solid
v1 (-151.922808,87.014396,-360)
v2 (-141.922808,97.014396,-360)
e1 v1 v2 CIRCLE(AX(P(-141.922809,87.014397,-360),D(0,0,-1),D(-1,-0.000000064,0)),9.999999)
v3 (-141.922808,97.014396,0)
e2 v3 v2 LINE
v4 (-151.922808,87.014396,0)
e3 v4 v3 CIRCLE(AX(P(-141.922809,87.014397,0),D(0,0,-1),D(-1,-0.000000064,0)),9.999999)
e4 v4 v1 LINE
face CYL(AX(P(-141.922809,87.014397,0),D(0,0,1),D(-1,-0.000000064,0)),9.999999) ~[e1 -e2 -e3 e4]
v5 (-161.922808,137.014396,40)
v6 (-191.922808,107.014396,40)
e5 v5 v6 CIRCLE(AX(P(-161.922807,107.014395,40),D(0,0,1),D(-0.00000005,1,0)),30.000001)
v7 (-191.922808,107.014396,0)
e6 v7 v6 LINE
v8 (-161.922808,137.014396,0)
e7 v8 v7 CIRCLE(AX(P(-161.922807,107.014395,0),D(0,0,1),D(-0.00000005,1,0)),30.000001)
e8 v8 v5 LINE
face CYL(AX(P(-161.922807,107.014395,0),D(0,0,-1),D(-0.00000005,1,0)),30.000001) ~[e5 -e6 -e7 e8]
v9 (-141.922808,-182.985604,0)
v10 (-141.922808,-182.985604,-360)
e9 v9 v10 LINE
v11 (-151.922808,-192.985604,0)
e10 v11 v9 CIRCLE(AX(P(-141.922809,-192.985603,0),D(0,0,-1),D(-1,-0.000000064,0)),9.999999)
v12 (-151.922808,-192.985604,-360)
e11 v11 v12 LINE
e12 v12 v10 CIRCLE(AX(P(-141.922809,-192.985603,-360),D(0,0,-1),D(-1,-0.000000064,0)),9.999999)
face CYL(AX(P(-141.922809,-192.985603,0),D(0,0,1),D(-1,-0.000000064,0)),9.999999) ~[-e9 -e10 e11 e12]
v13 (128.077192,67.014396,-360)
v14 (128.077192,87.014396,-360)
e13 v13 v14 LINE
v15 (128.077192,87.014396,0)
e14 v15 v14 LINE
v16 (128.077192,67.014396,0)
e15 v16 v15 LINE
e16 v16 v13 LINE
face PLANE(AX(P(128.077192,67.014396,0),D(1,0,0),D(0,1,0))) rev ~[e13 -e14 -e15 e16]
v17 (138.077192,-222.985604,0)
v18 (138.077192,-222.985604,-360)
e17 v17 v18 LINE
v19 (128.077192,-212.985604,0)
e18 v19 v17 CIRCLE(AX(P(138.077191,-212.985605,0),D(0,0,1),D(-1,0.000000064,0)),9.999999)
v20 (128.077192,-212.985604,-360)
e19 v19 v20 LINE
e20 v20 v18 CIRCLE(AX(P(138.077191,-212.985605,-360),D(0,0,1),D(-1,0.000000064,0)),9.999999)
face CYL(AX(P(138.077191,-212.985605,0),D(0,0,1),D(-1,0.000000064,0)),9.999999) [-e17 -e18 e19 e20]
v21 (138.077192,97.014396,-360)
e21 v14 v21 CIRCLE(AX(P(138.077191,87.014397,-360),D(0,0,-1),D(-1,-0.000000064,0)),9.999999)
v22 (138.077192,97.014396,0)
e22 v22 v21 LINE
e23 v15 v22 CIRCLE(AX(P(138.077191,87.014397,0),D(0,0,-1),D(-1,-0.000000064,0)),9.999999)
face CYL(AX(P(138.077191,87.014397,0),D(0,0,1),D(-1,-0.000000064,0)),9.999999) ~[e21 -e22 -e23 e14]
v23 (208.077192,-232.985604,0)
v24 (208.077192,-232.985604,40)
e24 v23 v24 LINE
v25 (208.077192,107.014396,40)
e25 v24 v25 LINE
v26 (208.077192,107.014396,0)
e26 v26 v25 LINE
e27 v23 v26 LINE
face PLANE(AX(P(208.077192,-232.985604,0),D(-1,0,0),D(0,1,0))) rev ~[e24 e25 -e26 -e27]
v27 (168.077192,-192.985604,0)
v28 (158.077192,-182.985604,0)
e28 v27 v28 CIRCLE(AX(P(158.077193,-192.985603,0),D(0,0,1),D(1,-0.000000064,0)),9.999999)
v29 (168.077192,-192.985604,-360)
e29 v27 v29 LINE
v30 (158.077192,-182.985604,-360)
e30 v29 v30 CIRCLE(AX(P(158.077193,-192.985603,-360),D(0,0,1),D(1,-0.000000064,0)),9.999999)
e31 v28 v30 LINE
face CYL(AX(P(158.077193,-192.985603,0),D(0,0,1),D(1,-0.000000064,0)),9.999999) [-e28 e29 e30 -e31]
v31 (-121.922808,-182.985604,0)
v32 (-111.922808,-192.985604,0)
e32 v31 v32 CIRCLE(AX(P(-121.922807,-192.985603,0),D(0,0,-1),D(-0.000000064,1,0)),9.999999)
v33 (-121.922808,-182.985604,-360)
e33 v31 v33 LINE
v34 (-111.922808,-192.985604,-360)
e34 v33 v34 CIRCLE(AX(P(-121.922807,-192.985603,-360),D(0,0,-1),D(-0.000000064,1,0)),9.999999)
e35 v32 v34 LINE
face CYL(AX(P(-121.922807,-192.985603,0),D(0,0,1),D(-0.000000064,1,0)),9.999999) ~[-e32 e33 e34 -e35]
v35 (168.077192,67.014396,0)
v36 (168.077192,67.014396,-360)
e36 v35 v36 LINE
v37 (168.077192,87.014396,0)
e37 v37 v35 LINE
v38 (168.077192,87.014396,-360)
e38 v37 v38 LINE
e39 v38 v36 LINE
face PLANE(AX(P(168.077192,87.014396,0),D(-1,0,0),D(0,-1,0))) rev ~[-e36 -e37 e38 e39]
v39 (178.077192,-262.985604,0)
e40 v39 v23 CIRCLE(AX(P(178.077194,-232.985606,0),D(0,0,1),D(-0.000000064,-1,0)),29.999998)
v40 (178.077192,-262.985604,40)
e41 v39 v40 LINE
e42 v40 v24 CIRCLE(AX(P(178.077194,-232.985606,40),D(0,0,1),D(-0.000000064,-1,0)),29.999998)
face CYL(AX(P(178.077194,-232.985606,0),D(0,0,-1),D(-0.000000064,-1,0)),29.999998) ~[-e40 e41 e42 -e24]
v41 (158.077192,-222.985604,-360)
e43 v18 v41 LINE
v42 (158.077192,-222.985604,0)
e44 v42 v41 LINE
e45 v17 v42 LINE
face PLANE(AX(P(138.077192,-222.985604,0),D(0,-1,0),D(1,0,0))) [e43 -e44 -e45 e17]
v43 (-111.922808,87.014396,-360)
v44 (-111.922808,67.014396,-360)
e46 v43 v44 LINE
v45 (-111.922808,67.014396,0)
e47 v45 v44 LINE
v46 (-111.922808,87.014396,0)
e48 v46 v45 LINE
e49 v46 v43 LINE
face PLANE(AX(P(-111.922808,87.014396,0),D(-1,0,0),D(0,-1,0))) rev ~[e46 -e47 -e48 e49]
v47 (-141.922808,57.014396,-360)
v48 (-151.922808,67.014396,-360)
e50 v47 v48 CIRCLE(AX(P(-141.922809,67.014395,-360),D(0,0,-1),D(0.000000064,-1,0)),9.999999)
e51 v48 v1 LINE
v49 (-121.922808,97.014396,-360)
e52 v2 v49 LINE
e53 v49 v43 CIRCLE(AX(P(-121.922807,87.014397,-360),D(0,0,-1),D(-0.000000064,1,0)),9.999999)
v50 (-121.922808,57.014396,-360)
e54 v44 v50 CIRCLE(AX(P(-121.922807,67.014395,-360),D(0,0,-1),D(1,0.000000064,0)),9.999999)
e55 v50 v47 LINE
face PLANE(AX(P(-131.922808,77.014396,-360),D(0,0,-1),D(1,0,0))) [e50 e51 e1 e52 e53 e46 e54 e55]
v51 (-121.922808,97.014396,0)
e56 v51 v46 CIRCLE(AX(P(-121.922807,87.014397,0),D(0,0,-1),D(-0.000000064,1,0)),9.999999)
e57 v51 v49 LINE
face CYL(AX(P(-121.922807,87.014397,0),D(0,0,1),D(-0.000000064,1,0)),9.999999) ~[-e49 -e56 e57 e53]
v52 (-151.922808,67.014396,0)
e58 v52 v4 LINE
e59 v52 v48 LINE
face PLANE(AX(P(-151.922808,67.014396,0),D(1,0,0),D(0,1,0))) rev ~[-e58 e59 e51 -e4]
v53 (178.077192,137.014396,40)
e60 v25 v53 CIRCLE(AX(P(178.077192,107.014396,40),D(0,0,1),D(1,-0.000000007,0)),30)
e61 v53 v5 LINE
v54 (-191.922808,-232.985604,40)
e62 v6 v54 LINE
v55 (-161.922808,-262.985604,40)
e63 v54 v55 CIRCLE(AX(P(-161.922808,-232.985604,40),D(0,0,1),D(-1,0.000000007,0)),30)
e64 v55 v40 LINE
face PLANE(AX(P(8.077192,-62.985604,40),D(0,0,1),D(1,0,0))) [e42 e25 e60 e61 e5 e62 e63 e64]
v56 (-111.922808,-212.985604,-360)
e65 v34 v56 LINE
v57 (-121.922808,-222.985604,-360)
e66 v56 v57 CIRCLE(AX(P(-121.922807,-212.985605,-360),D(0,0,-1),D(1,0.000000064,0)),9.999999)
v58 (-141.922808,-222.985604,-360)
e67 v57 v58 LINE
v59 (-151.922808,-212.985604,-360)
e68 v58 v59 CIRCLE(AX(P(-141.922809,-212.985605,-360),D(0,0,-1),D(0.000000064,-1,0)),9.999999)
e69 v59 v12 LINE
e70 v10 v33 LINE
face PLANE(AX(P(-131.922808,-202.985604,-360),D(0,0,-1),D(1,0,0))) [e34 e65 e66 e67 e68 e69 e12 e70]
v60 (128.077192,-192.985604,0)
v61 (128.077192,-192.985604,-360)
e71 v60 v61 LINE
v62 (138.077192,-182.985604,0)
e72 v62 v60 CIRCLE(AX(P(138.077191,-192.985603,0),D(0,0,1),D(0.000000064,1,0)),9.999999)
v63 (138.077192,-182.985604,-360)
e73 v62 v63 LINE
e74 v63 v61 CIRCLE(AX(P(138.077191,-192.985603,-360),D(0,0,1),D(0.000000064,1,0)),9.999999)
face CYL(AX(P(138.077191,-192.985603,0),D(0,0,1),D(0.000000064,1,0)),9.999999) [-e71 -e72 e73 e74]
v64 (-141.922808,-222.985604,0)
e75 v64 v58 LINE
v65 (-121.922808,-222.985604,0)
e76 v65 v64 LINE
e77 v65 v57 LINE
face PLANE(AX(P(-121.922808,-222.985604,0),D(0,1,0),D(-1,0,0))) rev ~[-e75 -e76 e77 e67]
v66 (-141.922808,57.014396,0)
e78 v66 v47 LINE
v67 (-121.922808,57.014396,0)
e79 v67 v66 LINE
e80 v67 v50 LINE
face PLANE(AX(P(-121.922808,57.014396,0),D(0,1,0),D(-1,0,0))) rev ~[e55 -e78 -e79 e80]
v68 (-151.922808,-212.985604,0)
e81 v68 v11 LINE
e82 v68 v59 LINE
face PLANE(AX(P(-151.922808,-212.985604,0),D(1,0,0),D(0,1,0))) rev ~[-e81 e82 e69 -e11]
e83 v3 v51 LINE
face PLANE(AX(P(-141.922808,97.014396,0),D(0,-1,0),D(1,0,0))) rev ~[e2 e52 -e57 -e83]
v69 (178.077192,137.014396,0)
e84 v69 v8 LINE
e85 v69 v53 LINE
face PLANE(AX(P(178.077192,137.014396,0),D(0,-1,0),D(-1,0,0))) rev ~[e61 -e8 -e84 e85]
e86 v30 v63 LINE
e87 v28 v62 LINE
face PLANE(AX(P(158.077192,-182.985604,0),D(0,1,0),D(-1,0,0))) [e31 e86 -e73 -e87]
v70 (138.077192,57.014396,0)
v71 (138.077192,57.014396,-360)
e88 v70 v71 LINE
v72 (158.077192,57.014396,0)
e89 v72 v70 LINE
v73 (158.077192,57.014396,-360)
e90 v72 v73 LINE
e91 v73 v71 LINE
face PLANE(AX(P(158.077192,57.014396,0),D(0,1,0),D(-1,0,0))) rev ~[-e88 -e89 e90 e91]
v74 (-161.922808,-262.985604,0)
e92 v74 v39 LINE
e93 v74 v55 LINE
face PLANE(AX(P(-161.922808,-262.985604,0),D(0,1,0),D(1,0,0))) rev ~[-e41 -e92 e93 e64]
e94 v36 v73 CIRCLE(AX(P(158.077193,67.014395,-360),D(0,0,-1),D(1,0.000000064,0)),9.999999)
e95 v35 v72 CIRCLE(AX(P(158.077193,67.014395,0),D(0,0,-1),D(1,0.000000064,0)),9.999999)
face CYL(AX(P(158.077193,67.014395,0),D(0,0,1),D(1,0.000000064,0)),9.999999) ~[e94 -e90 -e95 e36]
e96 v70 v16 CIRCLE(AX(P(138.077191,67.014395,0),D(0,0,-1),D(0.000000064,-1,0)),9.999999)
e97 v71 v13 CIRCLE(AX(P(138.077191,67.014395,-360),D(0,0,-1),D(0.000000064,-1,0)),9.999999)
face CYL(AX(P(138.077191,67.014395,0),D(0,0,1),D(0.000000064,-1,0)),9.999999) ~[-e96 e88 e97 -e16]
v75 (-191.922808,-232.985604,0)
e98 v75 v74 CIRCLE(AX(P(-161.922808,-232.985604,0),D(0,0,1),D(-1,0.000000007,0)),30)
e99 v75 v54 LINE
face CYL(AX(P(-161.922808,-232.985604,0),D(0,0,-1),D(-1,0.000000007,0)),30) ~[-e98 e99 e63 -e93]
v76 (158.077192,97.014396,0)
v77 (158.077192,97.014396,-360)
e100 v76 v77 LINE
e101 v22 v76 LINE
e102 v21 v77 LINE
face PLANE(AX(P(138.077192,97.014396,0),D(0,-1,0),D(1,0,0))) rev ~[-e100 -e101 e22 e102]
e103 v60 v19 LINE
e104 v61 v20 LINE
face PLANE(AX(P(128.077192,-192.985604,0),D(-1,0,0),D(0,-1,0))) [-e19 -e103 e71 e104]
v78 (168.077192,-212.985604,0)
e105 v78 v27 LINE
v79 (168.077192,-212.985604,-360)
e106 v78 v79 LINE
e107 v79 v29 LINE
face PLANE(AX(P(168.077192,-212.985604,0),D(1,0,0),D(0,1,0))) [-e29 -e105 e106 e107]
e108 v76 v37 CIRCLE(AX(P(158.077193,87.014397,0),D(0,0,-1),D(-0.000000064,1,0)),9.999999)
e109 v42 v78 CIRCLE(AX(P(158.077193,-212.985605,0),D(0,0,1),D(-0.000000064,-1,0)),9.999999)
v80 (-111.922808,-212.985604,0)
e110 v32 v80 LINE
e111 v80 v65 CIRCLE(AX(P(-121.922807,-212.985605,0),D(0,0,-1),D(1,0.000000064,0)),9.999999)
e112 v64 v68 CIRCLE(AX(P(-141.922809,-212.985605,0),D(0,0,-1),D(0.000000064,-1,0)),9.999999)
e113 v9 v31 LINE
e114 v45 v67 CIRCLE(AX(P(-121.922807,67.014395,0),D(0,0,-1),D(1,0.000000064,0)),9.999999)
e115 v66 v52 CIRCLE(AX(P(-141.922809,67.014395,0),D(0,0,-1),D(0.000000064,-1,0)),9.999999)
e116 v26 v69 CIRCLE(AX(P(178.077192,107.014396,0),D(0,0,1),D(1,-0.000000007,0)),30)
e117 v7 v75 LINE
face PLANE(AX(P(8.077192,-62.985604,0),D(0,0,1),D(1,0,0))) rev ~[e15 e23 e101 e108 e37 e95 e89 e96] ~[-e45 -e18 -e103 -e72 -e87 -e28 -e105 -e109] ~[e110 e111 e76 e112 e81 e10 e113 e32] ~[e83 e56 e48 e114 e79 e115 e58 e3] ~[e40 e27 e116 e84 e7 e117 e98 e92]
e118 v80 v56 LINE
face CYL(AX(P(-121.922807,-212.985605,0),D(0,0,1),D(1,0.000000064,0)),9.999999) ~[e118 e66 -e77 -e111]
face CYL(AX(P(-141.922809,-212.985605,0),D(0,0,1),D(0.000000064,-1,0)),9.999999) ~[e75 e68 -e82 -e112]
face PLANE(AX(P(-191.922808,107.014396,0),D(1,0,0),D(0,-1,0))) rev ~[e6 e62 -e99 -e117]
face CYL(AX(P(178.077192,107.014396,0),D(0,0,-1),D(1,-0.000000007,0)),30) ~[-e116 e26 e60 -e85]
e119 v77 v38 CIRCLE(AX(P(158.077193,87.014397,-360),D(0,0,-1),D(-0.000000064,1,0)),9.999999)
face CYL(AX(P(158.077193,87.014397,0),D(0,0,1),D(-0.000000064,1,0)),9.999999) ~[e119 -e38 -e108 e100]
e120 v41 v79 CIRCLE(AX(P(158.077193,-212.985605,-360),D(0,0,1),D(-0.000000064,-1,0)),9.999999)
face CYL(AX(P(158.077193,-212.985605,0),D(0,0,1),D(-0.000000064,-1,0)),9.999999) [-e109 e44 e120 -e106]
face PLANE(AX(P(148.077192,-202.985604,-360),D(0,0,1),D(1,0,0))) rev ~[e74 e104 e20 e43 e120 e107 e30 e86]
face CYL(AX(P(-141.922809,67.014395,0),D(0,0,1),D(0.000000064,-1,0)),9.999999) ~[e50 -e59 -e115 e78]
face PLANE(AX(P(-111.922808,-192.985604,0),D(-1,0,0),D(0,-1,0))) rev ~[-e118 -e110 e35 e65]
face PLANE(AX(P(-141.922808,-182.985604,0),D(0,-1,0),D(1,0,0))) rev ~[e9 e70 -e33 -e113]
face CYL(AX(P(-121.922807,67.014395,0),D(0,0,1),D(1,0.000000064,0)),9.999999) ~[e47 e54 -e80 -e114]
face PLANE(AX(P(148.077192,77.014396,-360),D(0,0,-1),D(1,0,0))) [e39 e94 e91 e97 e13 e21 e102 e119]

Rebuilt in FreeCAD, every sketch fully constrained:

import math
import FreeCAD as App
import Part
import Sketcher
from FreeCAD import Vector
Q = App.Units.Quantity

doc = App.newDocument("Part")
body = doc.addObject("PartDesign::Body", "Body")

sketch1 = body.newObject("Sketcher::SketchObject", "Sketch")
sketch1.AttachmentSupport = (doc.getObject("XY_Plane"), [""])
sketch1.MapMode = "FlatFace"
sketch1.addGeometry([
    Part.LineSegment(Vector(178, 137, 0), Vector(-162, 137, 0)),
    Part.ArcOfCircle(Part.Circle(Vector(-162, 107, 0), Vector(0, 0, 1), 30), math.radians(90), math.radians(180)),
    Part.LineSegment(Vector(-192, 107, 0), Vector(-192, -233, 0)),
    Part.ArcOfCircle(Part.Circle(Vector(-162, -233, 0), Vector(0, 0, 1), 30), math.radians(180), math.radians(270)),
    Part.LineSegment(Vector(-162, -263, 0), Vector(178, -263, 0)),
    Part.ArcOfCircle(Part.Circle(Vector(178, -233, 0), Vector(0, 0, 1), 30), math.radians(-90), math.radians(0)),
    Part.LineSegment(Vector(208, -233, 0), Vector(208, 107, 0)),
    Part.ArcOfCircle(Part.Circle(Vector(178, 107, 0), Vector(0, 0, 1), 30), math.radians(0), math.radians(90)),
], False)
sketch1.addConstraint([
    Sketcher.Constraint("Tangent", 0, 2, 1, 1),
    Sketcher.Constraint("Tangent", 1, 2, 2, 1),
    Sketcher.Constraint("Tangent", 2, 2, 3, 1),
    Sketcher.Constraint("Tangent", 3, 2, 4, 1),
    Sketcher.Constraint("Tangent", 4, 2, 5, 1),
    Sketcher.Constraint("Tangent", 5, 2, 6, 1),
    Sketcher.Constraint("Tangent", 6, 2, 7, 1),
    Sketcher.Constraint("Tangent", 7, 2, 0, 1),
    Sketcher.Constraint("Horizontal", 0),
    Sketcher.Constraint("Vertical", 2),
    Sketcher.Constraint("Horizontal", 4),
    Sketcher.Constraint("Vertical", 6),
    Sketcher.Constraint("Equal", 1, 3),
    Sketcher.Constraint("Equal", 3, 5),
    Sketcher.Constraint("Equal", 5, 7),
    Sketcher.Constraint("Equal", 4, 2),
    Sketcher.Constraint("Radius", 1, Q("30.000001 mm")),
    Sketcher.Constraint("DistanceX", 0, 2, 0, 1, Q("340 mm")),
    Sketcher.Constraint("DistanceX", 3, 3, -1, 1, Q("161.922808 mm")),
    Sketcher.Constraint("DistanceY", -1, 1, 1, 3, Q("107.014395 mm")),
])
pad1 = body.newObject("PartDesign::Pad", "Pad")
pad1.Profile = sketch1
pad1.Length = 40

sketch2 = body.newObject("Sketcher::SketchObject", "Sketch001")
sketch2.AttachmentSupport = (doc.getObject("XY_Plane"), [""])
sketch2.MapMode = "FlatFace"
sketch2.addGeometry([
    Part.LineSegment(Vector(-122, 57, 0), Vector(-142, 57, 0)),
    Part.ArcOfCircle(Part.Circle(Vector(-142, 67, 0), Vector(0, 0, 1), 10), math.radians(180), math.radians(270)),
    Part.LineSegment(Vector(-152, 67, 0), Vector(-152, 87, 0)),
    Part.ArcOfCircle(Part.Circle(Vector(-142, 87, 0), Vector(0, 0, 1), 10), math.radians(90), math.radians(180)),
    Part.LineSegment(Vector(-142, 97, 0), Vector(-122, 97, 0)),
    Part.ArcOfCircle(Part.Circle(Vector(-122, 87, 0), Vector(0, 0, 1), 10), math.radians(0), math.radians(90)),
    Part.LineSegment(Vector(-112, 87, 0), Vector(-112, 67, 0)),
    Part.ArcOfCircle(Part.Circle(Vector(-122, 67, 0), Vector(0, 0, 1), 10), math.radians(-90), math.radians(0)),
], False)
sketch2.addConstraint([
    Sketcher.Constraint("Tangent", 0, 2, 1, 2),
    Sketcher.Constraint("Tangent", 1, 1, 2, 1),
    Sketcher.Constraint("Tangent", 2, 2, 3, 2),
    Sketcher.Constraint("Tangent", 3, 1, 4, 1),
    Sketcher.Constraint("Tangent", 4, 2, 5, 2),
    Sketcher.Constraint("Tangent", 5, 1, 6, 1),
    Sketcher.Constraint("Tangent", 6, 2, 7, 2),
    Sketcher.Constraint("Tangent", 7, 1, 0, 1),
    Sketcher.Constraint("Horizontal", 0),
    Sketcher.Constraint("Vertical", 2),
    Sketcher.Constraint("Horizontal", 4),
    Sketcher.Constraint("Vertical", 6),
    Sketcher.Constraint("Equal", 1, 3),
    Sketcher.Constraint("Equal", 3, 5),
    Sketcher.Constraint("Equal", 5, 7),
    Sketcher.Constraint("Equal", 4, 2),
    Sketcher.Constraint("Radius", 1, Q("9.999999 mm")),
    Sketcher.Constraint("DistanceX", 0, 2, 0, 1, Q("20 mm")),
    Sketcher.Constraint("DistanceX", 1, 3, -1, 1, Q("141.922809 mm")),
    Sketcher.Constraint("DistanceY", -1, 1, 1, 3, Q("67.014395 mm")),
])
pad2 = body.newObject("PartDesign::Pad", "Pad001")
pad2.Profile = sketch2
pad2.Length = 360
pad2.Reversed = True

sketch3 = body.newObject("Sketcher::SketchObject", "Sketch002")
sketch3.AttachmentSupport = (doc.getObject("XY_Plane"), [""])
sketch3.MapMode = "FlatFace"
sketch3.addGeometry([
    Part.LineSegment(Vector(158, 57, 0), Vector(138, 57, 0)),
    Part.ArcOfCircle(Part.Circle(Vector(138, 67, 0), Vector(0, 0, 1), 10), math.radians(180), math.radians(270)),
    Part.LineSegment(Vector(128, 67, 0), Vector(128, 87, 0)),
    Part.ArcOfCircle(Part.Circle(Vector(138, 87, 0), Vector(0, 0, 1), 10), math.radians(90), math.radians(180)),
    Part.LineSegment(Vector(138, 97, 0), Vector(158, 97, 0)),
    Part.ArcOfCircle(Part.Circle(Vector(158, 87, 0), Vector(0, 0, 1), 10), math.radians(0), math.radians(90)),
    Part.LineSegment(Vector(168, 87, 0), Vector(168, 67, 0)),
    Part.ArcOfCircle(Part.Circle(Vector(158, 67, 0), Vector(0, 0, 1), 10), math.radians(-90), math.radians(0)),
], False)
sketch3.addConstraint([
    Sketcher.Constraint("Tangent", 0, 2, 1, 2),
    Sketcher.Constraint("Tangent", 1, 1, 2, 1),
    Sketcher.Constraint("Tangent", 2, 2, 3, 2),
    Sketcher.Constraint("Tangent", 3, 1, 4, 1),
    Sketcher.Constraint("Tangent", 4, 2, 5, 2),
    Sketcher.Constraint("Tangent", 5, 1, 6, 1),
    Sketcher.Constraint("Tangent", 6, 2, 7, 2),
    Sketcher.Constraint("Tangent", 7, 1, 0, 1),
    Sketcher.Constraint("Horizontal", 0),
    Sketcher.Constraint("Vertical", 2),
    Sketcher.Constraint("Horizontal", 4),
    Sketcher.Constraint("Vertical", 6),
    Sketcher.Constraint("Equal", 1, 3),
    Sketcher.Constraint("Equal", 3, 5),
    Sketcher.Constraint("Equal", 5, 7),
    Sketcher.Constraint("Equal", 4, 2),
    Sketcher.Constraint("Radius", 1, Q("9.999999 mm")),
    Sketcher.Constraint("DistanceX", 0, 2, 0, 1, Q("20 mm")),
    Sketcher.Constraint("DistanceX", -1, 1, 1, 3, Q("138.077191 mm")),
    Sketcher.Constraint("DistanceY", -1, 1, 1, 3, Q("67.014395 mm")),
])
pad3 = body.newObject("PartDesign::Pad", "Pad002")
pad3.Profile = sketch3
pad3.Length = 360
pad3.Reversed = True

sketch4 = body.newObject("Sketcher::SketchObject", "Sketch003")
sketch4.AttachmentSupport = (doc.getObject("XY_Plane"), [""])
sketch4.MapMode = "FlatFace"
sketch4.addGeometry([
    Part.LineSegment(Vector(-122, -223, 0), Vector(-142, -223, 0)),
    Part.ArcOfCircle(Part.Circle(Vector(-142, -213, 0), Vector(0, 0, 1), 10), math.radians(180), math.radians(270)),
    Part.LineSegment(Vector(-152, -213, 0), Vector(-152, -193, 0)),
    Part.ArcOfCircle(Part.Circle(Vector(-142, -193, 0), Vector(0, 0, 1), 10), math.radians(90), math.radians(180)),
    Part.LineSegment(Vector(-142, -183, 0), Vector(-122, -183, 0)),
    Part.ArcOfCircle(Part.Circle(Vector(-122, -193, 0), Vector(0, 0, 1), 10), math.radians(0), math.radians(90)),
    Part.LineSegment(Vector(-112, -193, 0), Vector(-112, -213, 0)),
    Part.ArcOfCircle(Part.Circle(Vector(-122, -213, 0), Vector(0, 0, 1), 10), math.radians(-90), math.radians(0)),
], False)
sketch4.addConstraint([
    Sketcher.Constraint("Tangent", 0, 2, 1, 2),
    Sketcher.Constraint("Tangent", 1, 1, 2, 1),
    Sketcher.Constraint("Tangent", 2, 2, 3, 2),
    Sketcher.Constraint("Tangent", 3, 1, 4, 1),
    Sketcher.Constraint("Tangent", 4, 2, 5, 2),
    Sketcher.Constraint("Tangent", 5, 1, 6, 1),
    Sketcher.Constraint("Tangent", 6, 2, 7, 2),
    Sketcher.Constraint("Tangent", 7, 1, 0, 1),
    Sketcher.Constraint("Horizontal", 0),
    Sketcher.Constraint("Vertical", 2),
    Sketcher.Constraint("Horizontal", 4),
    Sketcher.Constraint("Vertical", 6),
    Sketcher.Constraint("Equal", 1, 3),
    Sketcher.Constraint("Equal", 3, 5),
    Sketcher.Constraint("Equal", 5, 7),
    Sketcher.Constraint("Equal", 4, 2),
    Sketcher.Constraint("Radius", 1, Q("9.999999 mm")),
    Sketcher.Constraint("DistanceX", 0, 2, 0, 1, Q("20 mm")),
    Sketcher.Constraint("DistanceX", 1, 3, -1, 1, Q("141.922809 mm")),
    Sketcher.Constraint("DistanceY", 1, 3, -1, 1, Q("212.985605 mm")),
])
pad4 = body.newObject("PartDesign::Pad", "Pad003")
pad4.Profile = sketch4
pad4.Length = 360
pad4.Reversed = True

sketch5 = body.newObject("Sketcher::SketchObject", "Sketch004")
sketch5.AttachmentSupport = (doc.getObject("XY_Plane"), [""])
sketch5.MapMode = "FlatFace"
sketch5.addGeometry([
    Part.ArcOfCircle(Part.Circle(Vector(138, -213, 0), Vector(0, 0, 1), 10), math.radians(180), math.radians(270)),
    Part.LineSegment(Vector(138, -223, 0), Vector(158, -223, 0)),
    Part.ArcOfCircle(Part.Circle(Vector(158, -213, 0), Vector(0, 0, 1), 10), math.radians(-90), math.radians(0)),
    Part.LineSegment(Vector(168, -213, 0), Vector(168, -193, 0)),
    Part.ArcOfCircle(Part.Circle(Vector(158, -193, 0), Vector(0, 0, 1), 10), math.radians(0), math.radians(90)),
    Part.LineSegment(Vector(158, -183, 0), Vector(138, -183, 0)),
    Part.ArcOfCircle(Part.Circle(Vector(138, -193, 0), Vector(0, 0, 1), 10), math.radians(90), math.radians(180)),
    Part.LineSegment(Vector(128, -193, 0), Vector(128, -213, 0)),
], False)
sketch5.addConstraint([
    Sketcher.Constraint("Tangent", 0, 2, 1, 1),
    Sketcher.Constraint("Tangent", 1, 2, 2, 1),
    Sketcher.Constraint("Tangent", 2, 2, 3, 1),
    Sketcher.Constraint("Tangent", 3, 2, 4, 1),
    Sketcher.Constraint("Tangent", 4, 2, 5, 1),
    Sketcher.Constraint("Tangent", 5, 2, 6, 1),
    Sketcher.Constraint("Tangent", 6, 2, 7, 1),
    Sketcher.Constraint("Tangent", 7, 2, 0, 1),
    Sketcher.Constraint("Horizontal", 1),
    Sketcher.Constraint("Vertical", 3),
    Sketcher.Constraint("Horizontal", 5),
    Sketcher.Constraint("Vertical", 7),
    Sketcher.Constraint("Equal", 0, 2),
    Sketcher.Constraint("Equal", 2, 4),
    Sketcher.Constraint("Equal", 4, 6),
    Sketcher.Constraint("Equal", 5, 3),
    Sketcher.Constraint("Radius", 0, Q("9.999999 mm")),
    Sketcher.Constraint("DistanceX", 1, 1, 1, 2, Q("20 mm")),
    Sketcher.Constraint("DistanceX", -1, 1, 0, 3, Q("138.077191 mm")),
    Sketcher.Constraint("DistanceY", 0, 3, -1, 1, Q("212.985605 mm")),
])
pad5 = body.newObject("PartDesign::Pad", "Pad004")
pad5.Profile = sketch5
pad5.Length = 360
pad5.Reversed = True

doc.recompute()
